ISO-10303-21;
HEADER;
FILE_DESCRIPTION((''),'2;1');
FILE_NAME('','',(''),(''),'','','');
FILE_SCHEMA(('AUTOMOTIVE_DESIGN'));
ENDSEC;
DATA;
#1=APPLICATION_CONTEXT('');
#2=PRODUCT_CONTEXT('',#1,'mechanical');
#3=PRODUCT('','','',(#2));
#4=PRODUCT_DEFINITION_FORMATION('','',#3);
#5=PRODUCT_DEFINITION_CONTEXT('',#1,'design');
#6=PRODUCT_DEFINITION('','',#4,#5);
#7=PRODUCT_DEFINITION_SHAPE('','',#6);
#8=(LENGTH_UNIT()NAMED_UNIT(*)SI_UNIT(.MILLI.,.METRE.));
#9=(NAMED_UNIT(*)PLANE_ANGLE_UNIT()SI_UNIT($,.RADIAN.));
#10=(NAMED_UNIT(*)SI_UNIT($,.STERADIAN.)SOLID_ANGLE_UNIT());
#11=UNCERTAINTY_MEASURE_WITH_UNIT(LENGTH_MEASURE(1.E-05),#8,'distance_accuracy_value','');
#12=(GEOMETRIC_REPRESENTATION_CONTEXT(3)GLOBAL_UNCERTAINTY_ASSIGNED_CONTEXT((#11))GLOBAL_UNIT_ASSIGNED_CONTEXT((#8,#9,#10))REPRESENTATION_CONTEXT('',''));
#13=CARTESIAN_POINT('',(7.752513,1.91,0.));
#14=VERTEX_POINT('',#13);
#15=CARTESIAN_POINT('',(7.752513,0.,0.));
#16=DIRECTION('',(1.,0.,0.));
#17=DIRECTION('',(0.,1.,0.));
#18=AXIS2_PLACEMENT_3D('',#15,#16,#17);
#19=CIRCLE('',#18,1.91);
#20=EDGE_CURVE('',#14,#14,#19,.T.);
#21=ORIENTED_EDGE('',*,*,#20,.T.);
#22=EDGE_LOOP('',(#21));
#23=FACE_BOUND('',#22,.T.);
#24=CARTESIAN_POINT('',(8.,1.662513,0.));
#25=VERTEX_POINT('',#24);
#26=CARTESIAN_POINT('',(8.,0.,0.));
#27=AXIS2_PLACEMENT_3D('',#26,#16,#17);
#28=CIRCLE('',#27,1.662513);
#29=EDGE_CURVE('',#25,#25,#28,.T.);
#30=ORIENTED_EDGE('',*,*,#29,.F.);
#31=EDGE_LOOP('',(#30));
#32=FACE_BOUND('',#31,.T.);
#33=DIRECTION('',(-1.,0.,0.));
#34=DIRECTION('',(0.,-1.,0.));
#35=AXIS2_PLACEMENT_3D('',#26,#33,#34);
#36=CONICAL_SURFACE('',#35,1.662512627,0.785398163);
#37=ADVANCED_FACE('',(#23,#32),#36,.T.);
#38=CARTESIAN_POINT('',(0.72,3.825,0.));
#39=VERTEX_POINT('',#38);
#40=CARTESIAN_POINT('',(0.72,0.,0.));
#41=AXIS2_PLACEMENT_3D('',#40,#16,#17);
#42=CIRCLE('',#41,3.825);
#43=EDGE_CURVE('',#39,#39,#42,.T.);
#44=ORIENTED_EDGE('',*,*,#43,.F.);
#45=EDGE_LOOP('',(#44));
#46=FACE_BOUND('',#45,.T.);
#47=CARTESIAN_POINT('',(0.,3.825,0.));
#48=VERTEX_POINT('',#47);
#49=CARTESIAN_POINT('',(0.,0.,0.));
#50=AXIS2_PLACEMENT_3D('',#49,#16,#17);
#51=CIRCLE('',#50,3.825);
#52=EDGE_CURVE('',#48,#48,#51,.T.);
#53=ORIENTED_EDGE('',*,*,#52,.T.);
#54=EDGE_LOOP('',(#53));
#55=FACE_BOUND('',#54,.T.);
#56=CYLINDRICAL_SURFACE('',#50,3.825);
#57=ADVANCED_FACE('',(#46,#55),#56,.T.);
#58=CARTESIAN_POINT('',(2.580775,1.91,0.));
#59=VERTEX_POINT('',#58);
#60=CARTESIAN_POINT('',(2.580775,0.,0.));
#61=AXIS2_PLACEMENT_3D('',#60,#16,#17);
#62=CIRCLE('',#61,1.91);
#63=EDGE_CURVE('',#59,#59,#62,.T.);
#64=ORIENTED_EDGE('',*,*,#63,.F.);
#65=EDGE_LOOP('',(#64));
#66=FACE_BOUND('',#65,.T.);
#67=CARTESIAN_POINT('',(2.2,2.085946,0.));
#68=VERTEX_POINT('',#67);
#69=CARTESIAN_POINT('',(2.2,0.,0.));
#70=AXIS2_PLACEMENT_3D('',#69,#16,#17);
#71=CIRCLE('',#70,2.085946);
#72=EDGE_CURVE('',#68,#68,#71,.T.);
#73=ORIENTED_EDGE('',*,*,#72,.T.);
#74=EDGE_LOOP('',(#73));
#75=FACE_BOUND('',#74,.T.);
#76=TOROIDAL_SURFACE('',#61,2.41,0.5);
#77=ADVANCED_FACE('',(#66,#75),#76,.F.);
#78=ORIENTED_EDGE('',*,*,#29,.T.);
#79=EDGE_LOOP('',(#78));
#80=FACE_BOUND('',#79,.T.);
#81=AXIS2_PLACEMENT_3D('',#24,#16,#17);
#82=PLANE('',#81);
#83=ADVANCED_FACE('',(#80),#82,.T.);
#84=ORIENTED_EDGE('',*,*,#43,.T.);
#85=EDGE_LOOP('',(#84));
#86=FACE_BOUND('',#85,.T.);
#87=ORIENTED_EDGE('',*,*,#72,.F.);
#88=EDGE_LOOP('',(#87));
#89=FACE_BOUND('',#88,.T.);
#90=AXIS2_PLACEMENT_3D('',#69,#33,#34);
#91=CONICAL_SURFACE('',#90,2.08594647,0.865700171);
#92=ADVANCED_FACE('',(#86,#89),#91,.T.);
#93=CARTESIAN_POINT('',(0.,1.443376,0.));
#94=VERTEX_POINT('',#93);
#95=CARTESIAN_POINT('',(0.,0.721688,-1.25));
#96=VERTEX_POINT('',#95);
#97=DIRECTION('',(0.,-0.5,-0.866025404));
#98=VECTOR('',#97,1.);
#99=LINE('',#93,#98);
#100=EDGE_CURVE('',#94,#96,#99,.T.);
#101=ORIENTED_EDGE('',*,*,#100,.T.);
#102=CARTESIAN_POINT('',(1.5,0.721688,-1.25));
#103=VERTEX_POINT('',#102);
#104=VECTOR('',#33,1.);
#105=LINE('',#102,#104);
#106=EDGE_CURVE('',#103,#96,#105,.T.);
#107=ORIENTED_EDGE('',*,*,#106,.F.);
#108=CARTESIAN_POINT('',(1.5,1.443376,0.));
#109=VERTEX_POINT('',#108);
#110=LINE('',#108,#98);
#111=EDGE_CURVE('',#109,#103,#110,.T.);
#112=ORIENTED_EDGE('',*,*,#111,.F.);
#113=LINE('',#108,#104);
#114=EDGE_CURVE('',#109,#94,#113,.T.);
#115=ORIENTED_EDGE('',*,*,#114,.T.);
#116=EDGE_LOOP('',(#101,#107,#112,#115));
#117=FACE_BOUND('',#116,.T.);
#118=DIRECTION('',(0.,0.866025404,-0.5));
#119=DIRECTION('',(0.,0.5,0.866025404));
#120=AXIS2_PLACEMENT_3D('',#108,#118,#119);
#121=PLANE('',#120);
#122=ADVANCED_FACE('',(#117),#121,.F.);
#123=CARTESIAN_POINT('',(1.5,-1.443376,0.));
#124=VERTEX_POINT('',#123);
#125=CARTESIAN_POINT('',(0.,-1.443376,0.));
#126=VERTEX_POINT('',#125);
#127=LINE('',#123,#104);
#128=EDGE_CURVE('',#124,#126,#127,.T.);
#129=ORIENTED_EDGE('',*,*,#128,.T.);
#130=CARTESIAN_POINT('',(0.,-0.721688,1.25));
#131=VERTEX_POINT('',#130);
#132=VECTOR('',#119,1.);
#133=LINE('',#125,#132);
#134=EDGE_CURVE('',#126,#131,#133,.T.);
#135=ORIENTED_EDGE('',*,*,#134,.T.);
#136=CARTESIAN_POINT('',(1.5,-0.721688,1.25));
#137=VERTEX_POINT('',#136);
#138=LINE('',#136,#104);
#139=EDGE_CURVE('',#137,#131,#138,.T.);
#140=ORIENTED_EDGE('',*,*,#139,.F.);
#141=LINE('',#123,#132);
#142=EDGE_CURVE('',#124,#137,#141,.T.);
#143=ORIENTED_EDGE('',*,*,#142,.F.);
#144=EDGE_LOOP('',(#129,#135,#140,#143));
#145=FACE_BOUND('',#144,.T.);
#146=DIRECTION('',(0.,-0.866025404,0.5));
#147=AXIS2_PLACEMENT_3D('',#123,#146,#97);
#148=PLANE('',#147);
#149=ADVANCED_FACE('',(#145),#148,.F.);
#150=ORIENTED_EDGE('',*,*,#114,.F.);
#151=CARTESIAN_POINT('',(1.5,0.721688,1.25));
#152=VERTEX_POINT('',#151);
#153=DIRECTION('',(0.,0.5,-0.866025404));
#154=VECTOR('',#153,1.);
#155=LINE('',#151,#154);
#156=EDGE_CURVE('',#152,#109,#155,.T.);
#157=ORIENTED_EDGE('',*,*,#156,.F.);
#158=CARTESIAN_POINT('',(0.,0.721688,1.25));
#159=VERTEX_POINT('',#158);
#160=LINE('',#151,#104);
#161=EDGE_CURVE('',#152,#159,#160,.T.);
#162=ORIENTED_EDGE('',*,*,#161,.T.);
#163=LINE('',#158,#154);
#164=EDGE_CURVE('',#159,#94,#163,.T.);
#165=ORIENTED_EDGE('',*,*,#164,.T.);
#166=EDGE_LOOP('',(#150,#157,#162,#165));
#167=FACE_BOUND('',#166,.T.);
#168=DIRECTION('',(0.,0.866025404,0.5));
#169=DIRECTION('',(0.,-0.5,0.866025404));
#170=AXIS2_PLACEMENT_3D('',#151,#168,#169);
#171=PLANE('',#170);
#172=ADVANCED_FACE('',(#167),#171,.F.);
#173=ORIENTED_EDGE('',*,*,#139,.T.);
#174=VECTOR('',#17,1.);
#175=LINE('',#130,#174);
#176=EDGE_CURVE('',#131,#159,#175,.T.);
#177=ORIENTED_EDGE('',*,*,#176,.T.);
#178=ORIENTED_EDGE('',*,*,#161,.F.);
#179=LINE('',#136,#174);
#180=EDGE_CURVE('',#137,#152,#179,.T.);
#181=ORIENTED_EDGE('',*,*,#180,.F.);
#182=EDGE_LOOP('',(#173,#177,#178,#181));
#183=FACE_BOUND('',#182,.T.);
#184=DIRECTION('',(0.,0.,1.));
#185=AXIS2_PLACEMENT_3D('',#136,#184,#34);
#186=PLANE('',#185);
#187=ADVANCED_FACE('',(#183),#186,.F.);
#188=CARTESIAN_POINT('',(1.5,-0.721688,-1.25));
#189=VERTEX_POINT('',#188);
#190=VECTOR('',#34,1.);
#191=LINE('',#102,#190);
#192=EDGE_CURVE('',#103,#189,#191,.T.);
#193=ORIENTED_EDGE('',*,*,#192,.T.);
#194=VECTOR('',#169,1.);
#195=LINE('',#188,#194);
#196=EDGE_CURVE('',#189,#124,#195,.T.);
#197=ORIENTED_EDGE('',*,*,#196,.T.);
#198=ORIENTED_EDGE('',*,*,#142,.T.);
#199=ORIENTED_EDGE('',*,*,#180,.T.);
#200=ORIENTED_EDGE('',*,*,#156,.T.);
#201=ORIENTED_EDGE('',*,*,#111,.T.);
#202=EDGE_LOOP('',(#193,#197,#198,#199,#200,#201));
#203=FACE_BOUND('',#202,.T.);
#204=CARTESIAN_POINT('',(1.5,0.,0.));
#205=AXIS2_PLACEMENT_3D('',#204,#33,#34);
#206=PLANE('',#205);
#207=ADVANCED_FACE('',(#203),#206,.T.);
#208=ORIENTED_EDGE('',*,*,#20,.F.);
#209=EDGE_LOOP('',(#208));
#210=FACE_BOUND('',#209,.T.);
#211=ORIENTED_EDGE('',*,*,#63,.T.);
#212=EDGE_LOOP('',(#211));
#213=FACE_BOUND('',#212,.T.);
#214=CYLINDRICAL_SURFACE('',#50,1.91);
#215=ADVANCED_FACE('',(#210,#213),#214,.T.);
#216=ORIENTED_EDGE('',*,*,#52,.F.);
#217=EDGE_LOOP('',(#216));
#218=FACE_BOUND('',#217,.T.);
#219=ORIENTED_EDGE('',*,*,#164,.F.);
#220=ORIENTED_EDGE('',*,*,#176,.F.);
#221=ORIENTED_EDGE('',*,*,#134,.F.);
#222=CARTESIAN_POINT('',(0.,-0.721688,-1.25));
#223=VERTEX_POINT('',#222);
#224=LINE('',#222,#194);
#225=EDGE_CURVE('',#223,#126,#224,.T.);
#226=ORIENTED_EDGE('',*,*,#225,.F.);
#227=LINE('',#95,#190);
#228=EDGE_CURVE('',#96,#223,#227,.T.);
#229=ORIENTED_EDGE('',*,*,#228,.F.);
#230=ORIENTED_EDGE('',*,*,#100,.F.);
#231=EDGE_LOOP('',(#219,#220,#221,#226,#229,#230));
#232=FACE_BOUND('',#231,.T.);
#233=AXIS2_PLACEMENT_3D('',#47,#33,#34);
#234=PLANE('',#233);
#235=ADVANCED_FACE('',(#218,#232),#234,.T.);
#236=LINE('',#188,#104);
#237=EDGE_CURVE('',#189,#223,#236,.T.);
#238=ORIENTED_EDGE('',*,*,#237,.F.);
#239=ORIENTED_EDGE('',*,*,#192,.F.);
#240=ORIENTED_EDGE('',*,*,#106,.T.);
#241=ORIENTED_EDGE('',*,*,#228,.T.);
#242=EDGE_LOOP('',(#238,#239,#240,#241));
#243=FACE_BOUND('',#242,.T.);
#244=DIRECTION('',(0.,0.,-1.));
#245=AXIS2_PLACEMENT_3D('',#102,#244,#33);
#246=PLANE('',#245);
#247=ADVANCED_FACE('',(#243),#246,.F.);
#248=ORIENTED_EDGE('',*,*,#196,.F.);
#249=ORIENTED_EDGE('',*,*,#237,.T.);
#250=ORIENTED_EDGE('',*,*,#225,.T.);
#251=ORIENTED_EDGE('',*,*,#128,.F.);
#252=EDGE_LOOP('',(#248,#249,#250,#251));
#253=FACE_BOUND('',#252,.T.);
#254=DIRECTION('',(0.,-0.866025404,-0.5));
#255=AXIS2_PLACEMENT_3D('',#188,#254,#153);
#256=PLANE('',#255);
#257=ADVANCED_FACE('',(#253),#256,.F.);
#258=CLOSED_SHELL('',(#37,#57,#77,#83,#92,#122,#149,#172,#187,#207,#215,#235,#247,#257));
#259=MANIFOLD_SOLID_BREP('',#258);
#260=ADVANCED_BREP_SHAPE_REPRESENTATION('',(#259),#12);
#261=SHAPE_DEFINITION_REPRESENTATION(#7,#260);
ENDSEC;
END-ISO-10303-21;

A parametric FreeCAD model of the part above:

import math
import FreeCAD as App
import Part
import Sketcher
Q = App.Units.Quantity


def add_polygon(sketch, points):
    """Adds a closed chain of lines whose ends are joined by coincident constraints."""
    first, n = sketch.GeometryCount, len(points)
    for a, b in zip(points, points[1:] + points[:1]):
        sketch.addGeometry(Part.LineSegment(App.Vector(*a, 0), App.Vector(*b, 0)), False)
    for i in range(n):
        sketch.addConstraint(Sketcher.Constraint("Coincident", first + i, 2, first + (i + 1) % n, 1))

doc = App.newDocument("Part")
body = doc.addObject("PartDesign::Body", "Body")

# Sketch on XY plane
sketch1 = body.newObject("Sketcher::SketchObject", "Sketch")
sketch1.AttachmentSupport = (doc.getObject("XY_Plane"), [""])
sketch1.MapMode = "FlatFace"
sketch1.addGeometry([
    Part.LineSegment(App.Vector(7.75, 1.91, 0), App.Vector(2.58, 1.91, 0)),  # 0
    Part.ArcOfCircle(Part.Circle(App.Vector(2.58, 2.41, 0), App.Vector(0, 0, 1), 0.5), math.radians(-140), math.radians(-90)),  # 1
    Part.LineSegment(App.Vector(2.2, 2.09, 0), App.Vector(0.72, 3.83, 0)),  # 2
    Part.LineSegment(App.Vector(0.72, 3.83, 0), App.Vector(0, 3.83, 0)),  # 3
    Part.LineSegment(App.Vector(0, 3.83, 0), App.Vector(0, 0, 0)),  # 4
    Part.LineSegment(App.Vector(0, 0, 0), App.Vector(8, 0, 0)),  # 5
    Part.LineSegment(App.Vector(8, 0, 0), App.Vector(8, 1.66, 0)),  # 6
    Part.LineSegment(App.Vector(8, 1.66, 0), App.Vector(7.75, 1.91, 0)),  # 7
], False)
sketch1.addConstraint([
    Sketcher.Constraint("Tangent", 0, 2, 1, 2),
    Sketcher.Constraint("Tangent", 1, 1, 2, 1),
    Sketcher.Constraint("Coincident", 2, 2, 3, 1),
    Sketcher.Constraint("Coincident", 3, 2, 4, 1),
    Sketcher.Constraint("Coincident", 4, 2, 5, 1),
    Sketcher.Constraint("Coincident", 5, 2, 6, 1),
    Sketcher.Constraint("Coincident", 6, 2, 7, 1),
    Sketcher.Constraint("Coincident", 7, 2, 0, 1),
    Sketcher.Constraint("Horizontal", 0),
    Sketcher.Constraint("Horizontal", 3),
    Sketcher.Constraint("Vertical", 4),
    Sketcher.Constraint("Horizontal", 5),
    Sketcher.Constraint("Vertical", 6),
    Sketcher.Constraint("Coincident", 4, 2, -1, 1),
    Sketcher.Constraint("Radius", 1, 0.5),
    Sketcher.Constraint("DistanceX", 5, 1, 5, 2, 8.0),
    Sketcher.Constraint("Angle", 7, Q("135 deg")),
    Sketcher.Constraint("DistanceX", 3, 2, 3, 1, 0.72),
    Sketcher.Constraint("DistanceX", -1, 1, 1, 1, 2.2),
    Sketcher.Constraint("Distance", 7, 0.35),
    Sketcher.Constraint("DistanceY", 4, 2, 4, 1, 3.825),
    Sketcher.Constraint("DistanceY", -1, 1, 1, 3, 2.41),
])
revolution = body.newObject("PartDesign::Revolution", "Revolution")
revolution.Profile = sketch1
revolution.ReferenceAxis = (sketch1, ["H_Axis"])
revolution.Angle = 360

# Sketch on YZ plane
sketch2 = body.newObject("Sketcher::SketchObject", "Sketch001")
sketch2.AttachmentSupport = (doc.getObject("YZ_Plane"), [""])
sketch2.MapMode = "FlatFace"
add_polygon(sketch2, [(0.7, 1.2), (1.4, 0), (0.7, -1.2), (-0.7, -1.2), (-1.4, 0), (-0.7, 1.2)])  # lines 0-5
sketch2.addConstraint([
    Sketcher.Constraint("Horizontal", 2),
    Sketcher.Constraint("Horizontal", 5),
    Sketcher.Constraint("Symmetric", 0, 2, 3, 2, -1, 1),
    Sketcher.Constraint("Symmetric", 1, 2, 4, 2, -1, 1),
    Sketcher.Constraint("PointOnObject", 0, 2, -1),
    Sketcher.Constraint("Parallel", 0, 3),
    Sketcher.Constraint("Vertical", 2, 2, 4, 2),
    Sketcher.Constraint("Angle", 0, Q("-60 deg")),
    Sketcher.Constraint("DistanceY", 2, 2, 4, 2, 2.5),
    Sketcher.Constraint("DistanceX", 2, 2, 2, 1, 1.443376),
])
pocket1 = body.newObject("PartDesign::Pocket", "Pocket")
pocket1.Profile = sketch2
pocket1.Length = 1.5
pocket1.Reversed = True

doc.recompute()
